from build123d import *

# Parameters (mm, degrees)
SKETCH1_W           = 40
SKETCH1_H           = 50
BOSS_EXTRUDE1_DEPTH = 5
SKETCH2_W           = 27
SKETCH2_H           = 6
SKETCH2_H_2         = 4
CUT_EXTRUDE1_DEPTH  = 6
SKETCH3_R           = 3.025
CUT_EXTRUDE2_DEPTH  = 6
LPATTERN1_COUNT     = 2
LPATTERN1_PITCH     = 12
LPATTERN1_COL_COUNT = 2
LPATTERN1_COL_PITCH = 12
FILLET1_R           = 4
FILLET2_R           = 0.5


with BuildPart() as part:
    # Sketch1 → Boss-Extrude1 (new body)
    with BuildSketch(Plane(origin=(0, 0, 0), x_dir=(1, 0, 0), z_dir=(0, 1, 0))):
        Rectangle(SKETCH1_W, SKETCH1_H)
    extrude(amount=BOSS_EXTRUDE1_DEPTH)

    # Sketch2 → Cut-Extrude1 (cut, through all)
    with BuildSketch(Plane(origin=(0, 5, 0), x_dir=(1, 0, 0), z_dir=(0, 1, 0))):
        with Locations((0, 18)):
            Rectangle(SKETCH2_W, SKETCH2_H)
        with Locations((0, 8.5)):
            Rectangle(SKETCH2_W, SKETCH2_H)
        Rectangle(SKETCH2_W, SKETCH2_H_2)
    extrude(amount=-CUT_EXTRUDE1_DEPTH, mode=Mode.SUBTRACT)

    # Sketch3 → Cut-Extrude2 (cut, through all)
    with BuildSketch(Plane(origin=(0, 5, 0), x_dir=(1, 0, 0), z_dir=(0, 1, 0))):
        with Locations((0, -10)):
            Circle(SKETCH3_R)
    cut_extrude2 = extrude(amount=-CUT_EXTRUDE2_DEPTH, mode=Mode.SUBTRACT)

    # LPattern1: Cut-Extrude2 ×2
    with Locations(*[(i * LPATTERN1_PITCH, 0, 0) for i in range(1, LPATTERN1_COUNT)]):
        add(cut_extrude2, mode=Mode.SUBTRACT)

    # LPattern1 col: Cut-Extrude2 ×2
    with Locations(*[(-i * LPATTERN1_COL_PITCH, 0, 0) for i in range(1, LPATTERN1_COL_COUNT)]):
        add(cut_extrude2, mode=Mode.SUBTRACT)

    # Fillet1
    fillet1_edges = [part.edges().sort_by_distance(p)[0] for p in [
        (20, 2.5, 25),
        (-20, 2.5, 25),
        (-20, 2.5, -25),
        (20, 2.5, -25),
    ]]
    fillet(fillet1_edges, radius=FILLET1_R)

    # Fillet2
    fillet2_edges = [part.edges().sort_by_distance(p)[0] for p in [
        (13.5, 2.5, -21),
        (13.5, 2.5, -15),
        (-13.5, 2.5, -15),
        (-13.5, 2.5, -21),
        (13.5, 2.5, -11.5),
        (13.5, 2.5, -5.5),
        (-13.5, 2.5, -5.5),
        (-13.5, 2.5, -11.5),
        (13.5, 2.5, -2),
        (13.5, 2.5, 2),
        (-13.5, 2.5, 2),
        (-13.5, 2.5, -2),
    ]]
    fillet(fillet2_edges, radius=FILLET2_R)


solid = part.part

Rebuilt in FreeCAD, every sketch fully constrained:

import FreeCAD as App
import Part
import Sketcher
from FreeCAD import Vector
Q = App.Units.Quantity


def edges_at(feature, points):
    """Names of the edges that pass closest to the given points."""
    edges = feature.Shape.Edges
    near = lambda p: min(range(len(edges)), key=lambda i: edges[i].distToShape(Part.Vertex(*p))[0])
    return sorted({f"Edge{near(p) + 1}" for p in points})


def add_polygon(sketch, points):
    """Adds a closed chain of lines whose ends are joined by coincident constraints."""
    first, n = sketch.GeometryCount, len(points)
    for a, b in zip(points, points[1:] + points[:1]):
        sketch.addGeometry(Part.LineSegment(App.Vector(*a, 0), App.Vector(*b, 0)), False)
    for i in range(n):
        sketch.addConstraint(Sketcher.Constraint("Coincident", first + i, 2, first + (i + 1) % n, 1))

doc = App.newDocument("Part")
body = doc.addObject("PartDesign::Body", "Body")

# Sketch on XZ plane
sketch1 = body.newObject("Sketcher::SketchObject", "Sketch")
sketch1.AttachmentSupport = (doc.getObject("XZ_Plane"), [""])
sketch1.MapMode = "FlatFace"
add_polygon(sketch1, [(-20, -25), (-20, 25), (20, 25), (20, -25)])  # lines 0-3
sketch1.addConstraint(Sketcher.Constraint("Vertical", 0))
sketch1.addConstraint(Sketcher.Constraint("Horizontal", 1))
sketch1.addConstraint(Sketcher.Constraint("Vertical", 2))
sketch1.addConstraint(Sketcher.Constraint("Horizontal", 3))
sketch1.addConstraint(Sketcher.Constraint("Symmetric", 0, 2, 2, 2, -1, 1))
sketch1.addConstraint(Sketcher.Constraint("DistanceX", 1, 1, 1, 2, Q("40 mm")))
sketch1.addConstraint(Sketcher.Constraint("DistanceY", 0, 1, 0, 2, Q("50 mm")))
pad1 = body.newObject("PartDesign::Pad", "Pad")
pad1.Profile = sketch1
pad1.Length = 5
pad1.Reversed = True

# Sketch on XZ plane
sketch2 = body.newObject("Sketcher::SketchObject", "Sketch001")
sketch2.AttachmentSupport = (doc.getObject("XZ_Plane"), [""])
sketch2.MapMode = "FlatFace"
sketch2.AttachmentOffset = App.Placement(Vector(0, 0, -5), App.Rotation())
add_polygon(sketch2, [(-13.5, -21), (-13.5, -15), (13.5, -15), (13.5, -21)])  # lines 0-3
add_polygon(sketch2, [(-13.5, -11.5), (-13.5, -5.5), (13.5, -5.5), (13.5, -11.5)])  # lines 4-7
add_polygon(sketch2, [(-13.5, -2), (-13.5, 2), (13.5, 2), (13.5, -2)])  # lines 8-11
sketch2.addConstraint(Sketcher.Constraint("Vertical", 0))
sketch2.addConstraint(Sketcher.Constraint("Horizontal", 1))
sketch2.addConstraint(Sketcher.Constraint("Vertical", 2))
sketch2.addConstraint(Sketcher.Constraint("Horizontal", 3))
sketch2.addConstraint(Sketcher.Constraint("Vertical", 4))
sketch2.addConstraint(Sketcher.Constraint("Horizontal", 5))
sketch2.addConstraint(Sketcher.Constraint("Vertical", 6))
sketch2.addConstraint(Sketcher.Constraint("Horizontal", 7))
sketch2.addConstraint(Sketcher.Constraint("Vertical", 8))
sketch2.addConstraint(Sketcher.Constraint("Horizontal", 9))
sketch2.addConstraint(Sketcher.Constraint("Vertical", 10))
sketch2.addConstraint(Sketcher.Constraint("Horizontal", 11))
sketch2.addConstraint(Sketcher.Constraint("Symmetric", 8, 2, 10, 2, -1, 1))
sketch2.addConstraint(Sketcher.Constraint("Vertical", 3, 2, 4, 2))
sketch2.addConstraint(Sketcher.Constraint("Vertical", 2, 2, 5, 2))
sketch2.addConstraint(Sketcher.Constraint("Vertical", 7, 2, 8, 2))
sketch2.addConstraint(Sketcher.Constraint("Vertical", 6, 2, 9, 2))
sketch2.addConstraint(Sketcher.Constraint("Equal", 2, 4))
sketch2.addConstraint(Sketcher.Constraint("DistanceX", 1, 1, 1, 2, Q("27 mm")))
sketch2.addConstraint(Sketcher.Constraint("DistanceY", 0, 1, 0, 2, Q("6 mm")))
sketch2.addConstraint(Sketcher.Constraint("DistanceY", 8, 1, 8, 2, Q("4 mm")))
sketch2.addConstraint(Sketcher.Constraint("DistanceY", 0, 2, -1, 1, Q("15 mm")))
sketch2.addConstraint(Sketcher.Constraint("DistanceY", 4, 2, -1, 1, Q("5.5 mm")))
pocket1 = body.newObject("PartDesign::Pocket", "Pocket")
pocket1.Profile = sketch2
pocket1.Type = "ThroughAll"
pocket1.Reversed = True

# Sketch on XZ plane
sketch3 = body.newObject("Sketcher::SketchObject", "Sketch002")
sketch3.AttachmentSupport = (doc.getObject("XZ_Plane"), [""])
sketch3.MapMode = "FlatFace"
sketch3.AttachmentOffset = App.Placement(Vector(0, 0, -5), App.Rotation())
sketch3.addGeometry(Part.Circle(Vector(0, 10, 0), Vector(0, 0, 1), 3), False)
sketch3.addConstraint(Sketcher.Constraint("PointOnObject", 0, 3, -2))
sketch3.addConstraint(Sketcher.Constraint("Diameter", 0, Q("6.05 mm")))
sketch3.addConstraint(Sketcher.Constraint("DistanceY", -1, 1, 0, 3, Q("10 mm")))
pocket2 = body.newObject("PartDesign::Pocket", "Pocket001")
pocket2.Profile = sketch3
pocket2.Type = "ThroughAll"
pocket2.Reversed = True
doc.recompute()

linearpattern = body.newObject("PartDesign::LinearPattern", "LinearPattern")
linearpattern.Originals = [pocket2]
linearpattern.Direction = (doc.getObject("X_Axis"), [""])
linearpattern.Mode = "offset"
linearpattern.Offset = 12
linearpattern.Occurrences = 2
body.Tip = linearpattern
doc.recompute()

linearpattern2 = body.newObject("PartDesign::LinearPattern", "LinearPattern001")
linearpattern2.Originals = [pocket2]
linearpattern2.Direction = (doc.getObject("X_Axis"), [""])
linearpattern2.Mode = "offset"
linearpattern2.Offset = 12
linearpattern2.Occurrences = 2
linearpattern2.Reversed = True
body.Tip = linearpattern2
doc.recompute()

fillet = body.newObject("PartDesign::Fillet", "Fillet")
fillet.Base = (linearpattern2, edges_at(linearpattern2, [
    (20, 2.5, 25),
    (-20, 2.5, 25),
    (-20, 2.5, -25),
    (20, 2.5, -25),
]))
fillet.Radius = 4
doc.recompute()

fillet2 = body.newObject("PartDesign::Fillet", "Fillet001")
fillet2.Base = (fillet, edges_at(fillet, [
    (13.5, 2.5, -21),
    (13.5, 2.5, -15),
    (-13.5, 2.5, -15),
    (-13.5, 2.5, -21),
    (13.5, 2.5, -11.5),
    (13.5, 2.5, -5.5),
    (-13.5, 2.5, -5.5),
    (-13.5, 2.5, -11.5),
    (13.5, 2.5, -2),
    (13.5, 2.5, 2),
    (-13.5, 2.5, 2),
    (-13.5, 2.5, -2),
]))
fillet2.Radius = 0.5

doc.recompute()
